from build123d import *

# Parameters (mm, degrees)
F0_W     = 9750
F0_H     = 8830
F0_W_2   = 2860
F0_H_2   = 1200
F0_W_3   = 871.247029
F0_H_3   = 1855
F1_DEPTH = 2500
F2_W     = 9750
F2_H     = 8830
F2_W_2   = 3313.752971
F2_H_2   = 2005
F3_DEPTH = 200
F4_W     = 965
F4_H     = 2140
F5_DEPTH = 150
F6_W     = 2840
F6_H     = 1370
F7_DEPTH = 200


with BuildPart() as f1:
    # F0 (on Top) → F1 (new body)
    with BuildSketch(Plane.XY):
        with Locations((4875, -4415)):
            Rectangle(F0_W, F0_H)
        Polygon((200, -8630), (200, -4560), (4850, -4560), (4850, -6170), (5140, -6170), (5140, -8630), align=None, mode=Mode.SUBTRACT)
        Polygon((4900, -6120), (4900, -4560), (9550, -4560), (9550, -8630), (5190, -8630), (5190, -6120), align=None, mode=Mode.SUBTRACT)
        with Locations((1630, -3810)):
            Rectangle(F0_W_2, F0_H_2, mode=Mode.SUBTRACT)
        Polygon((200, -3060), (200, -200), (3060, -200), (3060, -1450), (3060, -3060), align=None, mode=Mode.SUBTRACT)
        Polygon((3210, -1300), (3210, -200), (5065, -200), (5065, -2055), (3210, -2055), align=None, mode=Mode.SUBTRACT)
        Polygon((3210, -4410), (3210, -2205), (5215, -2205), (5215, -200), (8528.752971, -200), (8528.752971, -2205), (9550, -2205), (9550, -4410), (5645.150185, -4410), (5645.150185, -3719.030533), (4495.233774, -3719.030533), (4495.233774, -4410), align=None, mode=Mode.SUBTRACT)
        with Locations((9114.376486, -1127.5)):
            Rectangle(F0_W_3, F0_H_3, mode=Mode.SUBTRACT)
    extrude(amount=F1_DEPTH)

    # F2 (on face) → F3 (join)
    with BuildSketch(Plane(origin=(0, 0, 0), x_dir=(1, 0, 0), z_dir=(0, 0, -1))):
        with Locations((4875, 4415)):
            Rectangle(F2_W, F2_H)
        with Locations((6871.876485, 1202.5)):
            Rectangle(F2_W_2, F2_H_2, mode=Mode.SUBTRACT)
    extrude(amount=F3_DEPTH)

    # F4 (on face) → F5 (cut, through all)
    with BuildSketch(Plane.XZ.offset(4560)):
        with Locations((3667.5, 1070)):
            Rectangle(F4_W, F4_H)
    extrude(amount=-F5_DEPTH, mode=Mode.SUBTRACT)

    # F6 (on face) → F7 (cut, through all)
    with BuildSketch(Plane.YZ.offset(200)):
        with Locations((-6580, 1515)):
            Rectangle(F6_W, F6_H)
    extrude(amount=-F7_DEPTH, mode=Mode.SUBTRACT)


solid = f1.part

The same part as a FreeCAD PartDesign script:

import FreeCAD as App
import Part
import Sketcher
from FreeCAD import Vector
Q = App.Units.Quantity

doc = App.newDocument("Part")
body = doc.addObject("PartDesign::Body", "Body")

# Sketch on XY plane
sketch1 = body.newObject("Sketcher::SketchObject", "Sketch")
sketch1.AttachmentSupport = (doc.getObject("XY_Plane"), [""])
sketch1.MapMode = "FlatFace"
sketch1.addGeometry([
    Part.LineSegment(Vector(0, 0, 0), Vector(0, -8830, 0)),  # 0
    Part.LineSegment(Vector(0, -8830, 0), Vector(9750, -8830, 0)),  # 1
    Part.LineSegment(Vector(9750, -8830, 0), Vector(9750, 0, 0)),  # 2
    Part.LineSegment(Vector(9750, 0, 0), Vector(0, 0, 0)),  # 3
    Part.LineSegment(Vector(5140, -8630, 0), Vector(200, -8630, 0)),  # 4
    Part.LineSegment(Vector(200, -8630, 0), Vector(200, -4560, 0)),  # 5
    Part.LineSegment(Vector(200, -4560, 0), Vector(4850, -4560, 0)),  # 6
    Part.LineSegment(Vector(4850, -4560, 0), Vector(4850, -6170, 0)),  # 7
    Part.LineSegment(Vector(4850, -6170, 0), Vector(5140, -6170, 0)),  # 8
    Part.LineSegment(Vector(5140, -6170, 0), Vector(5140, -8630, 0)),  # 9
    Part.LineSegment(Vector(5190, -6120, 0), Vector(4900, -6120, 0)),  # 10
    Part.LineSegment(Vector(4900, -6120, 0), Vector(4900, -4560, 0)),  # 11
    Part.LineSegment(Vector(4900, -4560, 0), Vector(9550, -4560, 0)),  # 12
    Part.LineSegment(Vector(9550, -4560, 0), Vector(9550, -8630, 0)),  # 13
    Part.LineSegment(Vector(9550, -8630, 0), Vector(5190, -8630, 0)),  # 14
    Part.LineSegment(Vector(5190, -8630, 0), Vector(5190, -6120, 0)),  # 15
    Part.LineSegment(Vector(3060, -4410, 0), Vector(200, -4410, 0)),  # 16
    Part.LineSegment(Vector(200, -4410, 0), Vector(200, -3210, 0)),  # 17
    Part.LineSegment(Vector(200, -3210, 0), Vector(3060, -3210, 0)),  # 18
    Part.LineSegment(Vector(3060, -3210, 0), Vector(3060, -4410, 0)),  # 19
    Part.LineSegment(Vector(3060, -3060, 0), Vector(200, -3060, 0)),  # 20
    Part.LineSegment(Vector(200, -3060, 0), Vector(200, -200, 0)),  # 21
    Part.LineSegment(Vector(200, -200, 0), Vector(3060, -200, 0)),  # 22
    Part.LineSegment(Vector(3060, -200, 0), Vector(3060, -3060, 0)),  # 23
    Part.LineSegment(Vector(3210, -2055, 0), Vector(3210, -200, 0)),  # 24
    Part.LineSegment(Vector(3210, -200, 0), Vector(5065, -200, 0)),  # 25
    Part.LineSegment(Vector(5065, -200, 0), Vector(5065, -2055, 0)),  # 26
    Part.LineSegment(Vector(5065, -2055, 0), Vector(3210, -2055, 0)),  # 27
    Part.LineSegment(Vector(4495.233774, -4410, 0), Vector(3210, -4410, 0)),  # 28
    Part.LineSegment(Vector(3210, -4410, 0), Vector(3210, -2205, 0)),  # 29
    Part.LineSegment(Vector(3210, -2205, 0), Vector(5215, -2205, 0)),  # 30
    Part.LineSegment(Vector(5215, -2205, 0), Vector(5215, -200, 0)),  # 31
    Part.LineSegment(Vector(5215, -200, 0), Vector(8528.752971, -200, 0)),  # 32
    Part.LineSegment(Vector(8528.752971, -200, 0), Vector(8528.752971, -2205, 0)),  # 33
    Part.LineSegment(Vector(8528.752971, -2205, 0), Vector(9550, -2205, 0)),  # 34
    Part.LineSegment(Vector(9550, -2205, 0), Vector(9550, -4410, 0)),  # 35
    Part.LineSegment(Vector(9550, -4410, 0), Vector(5645.150185, -4410, 0)),  # 36
    Part.LineSegment(Vector(5645.150185, -4410, 0), Vector(5645.150185, -3719.030533, 0)),  # 37
    Part.LineSegment(Vector(5645.150185, -3719.030533, 0), Vector(4495.233774, -3719.030533, 0)),  # 38
    Part.LineSegment(Vector(4495.233774, -3719.030533, 0), Vector(4495.233774, -4410, 0)),  # 39
    Part.LineSegment(Vector(9550.000001, -2055, 0), Vector(8678.752972, -2055, 0)),  # 40
    Part.LineSegment(Vector(8678.752972, -2055, 0), Vector(8678.752972, -200, 0)),  # 41
    Part.LineSegment(Vector(8678.752972, -200, 0), Vector(9550.000001, -200, 0)),  # 42
    Part.LineSegment(Vector(9550.000001, -200, 0), Vector(9550.000001, -2055, 0)),  # 43
], False)
sketch1.addConstraint([
    Sketcher.Constraint("Coincident", 0, 2, 1, 1),
    Sketcher.Constraint("Coincident", 1, 2, 2, 1),
    Sketcher.Constraint("Coincident", 2, 2, 3, 1),
    Sketcher.Constraint("Coincident", 3, 2, 0, 1),
    Sketcher.Constraint("Coincident", 4, 2, 5, 1),
    Sketcher.Constraint("Coincident", 5, 2, 6, 1),
    Sketcher.Constraint("Coincident", 6, 2, 7, 1),
    Sketcher.Constraint("Coincident", 7, 2, 8, 1),
    Sketcher.Constraint("Coincident", 8, 2, 9, 1),
    Sketcher.Constraint("Coincident", 9, 2, 4, 1),
    Sketcher.Constraint("Coincident", 10, 2, 11, 1),
    Sketcher.Constraint("Coincident", 11, 2, 12, 1),
    Sketcher.Constraint("Coincident", 12, 2, 13, 1),
    Sketcher.Constraint("Coincident", 13, 2, 14, 1),
    Sketcher.Constraint("Coincident", 14, 2, 15, 1),
    Sketcher.Constraint("Coincident", 15, 2, 10, 1),
    Sketcher.Constraint("Coincident", 16, 2, 17, 1),
    Sketcher.Constraint("Coincident", 17, 2, 18, 1),
    Sketcher.Constraint("Coincident", 18, 2, 19, 1),
    Sketcher.Constraint("Coincident", 19, 2, 16, 1),
    Sketcher.Constraint("Coincident", 20, 2, 21, 1),
    Sketcher.Constraint("Coincident", 21, 2, 22, 1),
    Sketcher.Constraint("Coincident", 22, 2, 23, 1),
    Sketcher.Constraint("Coincident", 23, 2, 20, 1),
    Sketcher.Constraint("Coincident", 24, 2, 25, 1),
    Sketcher.Constraint("Coincident", 25, 2, 26, 1),
    Sketcher.Constraint("Coincident", 26, 2, 27, 1),
    Sketcher.Constraint("Coincident", 27, 2, 24, 1),
    Sketcher.Constraint("Coincident", 28, 2, 29, 1),
    Sketcher.Constraint("Coincident", 29, 2, 30, 1),
    Sketcher.Constraint("Coincident", 30, 2, 31, 1),
    Sketcher.Constraint("Coincident", 31, 2, 32, 1),
    Sketcher.Constraint("Coincident", 32, 2, 33, 1),
    Sketcher.Constraint("Coincident", 33, 2, 34, 1),
    Sketcher.Constraint("Coincident", 34, 2, 35, 1),
    Sketcher.Constraint("Coincident", 35, 2, 36, 1),
    Sketcher.Constraint("Coincident", 36, 2, 37, 1),
    Sketcher.Constraint("Coincident", 37, 2, 38, 1),
    Sketcher.Constraint("Coincident", 38, 2, 39, 1),
    Sketcher.Constraint("Coincident", 39, 2, 28, 1),
    Sketcher.Constraint("Coincident", 40, 2, 41, 1),
    Sketcher.Constraint("Coincident", 41, 2, 42, 1),
    Sketcher.Constraint("Coincident", 42, 2, 43, 1),
    Sketcher.Constraint("Coincident", 43, 2, 40, 1),
    Sketcher.Constraint("Vertical", 0),
    Sketcher.Constraint("Horizontal", 1),
    Sketcher.Constraint("Vertical", 2),
    Sketcher.Constraint("Horizontal", 3),
    Sketcher.Constraint("Horizontal", 4),
    Sketcher.Constraint("Vertical", 5),
    Sketcher.Constraint("Horizontal", 6),
    Sketcher.Constraint("Vertical", 7),
    Sketcher.Constraint("Horizontal", 8),
    Sketcher.Constraint("Vertical", 9),
    Sketcher.Constraint("Horizontal", 10),
    Sketcher.Constraint("Vertical", 11),
    Sketcher.Constraint("Horizontal", 12),
    Sketcher.Constraint("Vertical", 13),
    Sketcher.Constraint("Horizontal", 14),
    Sketcher.Constraint("Vertical", 15),
    Sketcher.Constraint("Horizontal", 16),
    Sketcher.Constraint("Vertical", 17),
    Sketcher.Constraint("Horizontal", 18),
    Sketcher.Constraint("Vertical", 19),
    Sketcher.Constraint("Horizontal", 20),
    Sketcher.Constraint("Vertical", 21),
    Sketcher.Constraint("Horizontal", 22),
    Sketcher.Constraint("Vertical", 23),
    Sketcher.Constraint("Vertical", 24),
    Sketcher.Constraint("Horizontal", 25),
    Sketcher.Constraint("Vertical", 26),
    Sketcher.Constraint("Horizontal", 27),
    Sketcher.Constraint("Horizontal", 28),
    Sketcher.Constraint("Vertical", 29),
    Sketcher.Constraint("Horizontal", 30),
    Sketcher.Constraint("Vertical", 31),
    Sketcher.Constraint("Horizontal", 32),
    Sketcher.Constraint("Vertical", 33),
    Sketcher.Constraint("Horizontal", 34),
    Sketcher.Constraint("Vertical", 35),
    Sketcher.Constraint("Horizontal", 36),
    Sketcher.Constraint("Vertical", 37),
    Sketcher.Constraint("Horizontal", 38),
    Sketcher.Constraint("Vertical", 39),
    Sketcher.Constraint("Horizontal", 40),
    Sketcher.Constraint("Vertical", 41),
    Sketcher.Constraint("Horizontal", 42),
    Sketcher.Constraint("Vertical", 43),
    Sketcher.Constraint("Coincident", 3, 2, -1, 1),
    Sketcher.Constraint("Horizontal", 6, 2, 11, 2),
    Sketcher.Constraint("Horizontal", 9, 2, 13, 2),
    Sketcher.Constraint("Horizontal", 22, 2, 24, 2),
    Sketcher.Constraint("Horizontal", 19, 2, 28, 2),
    Sketcher.Constraint("Horizontal", 25, 2, 31, 2),
    Sketcher.Constraint("Horizontal", 30, 2, 33, 2),
    Sketcher.Constraint("Horizontal", 28, 2, 35, 2),
    Sketcher.Constraint("Horizontal", 27, 2, 40, 2),
    Sketcher.Constraint("Horizontal", 32, 2, 41, 2),
    Sketcher.Constraint("Vertical", 5, 2, 16, 2),
    Sketcher.Constraint("Vertical", 17, 2, 20, 2),
    Sketcher.Constraint("Vertical", 19, 2, 22, 2),
    Sketcher.Constraint("Vertical", 27, 2, 28, 2),
    Sketcher.Constraint("Vertical", 13, 2, 34, 2),
    Sketcher.Constraint("Vertical", 35, 2, 42, 2),
    Sketcher.Constraint("Equal", 8, 10),
    Sketcher.Constraint("Equal", 6, 12),
    Sketcher.Constraint("Equal", 22, 21),
    Sketcher.Constraint("Equal", 27, 24),
    Sketcher.Constraint("Equal", 30, 31),
    Sketcher.Constraint("DistanceX", 1, 1, 1, 2, Q("9750 mm")),
    Sketcher.Constraint("DistanceX", 4, 2, 4, 1, Q("4940 mm")),
    Sketcher.Constraint("DistanceX", 6, 1, 6, 2, Q("4650 mm")),
    Sketcher.Constraint("DistanceX", 16, 2, 16, 1, Q("2860 mm")),
    Sketcher.Constraint("DistanceX", 25, 1, 25, 2, Q("1855 mm")),
    Sketcher.Constraint("DistanceX", 30, 1, 30, 2, Q("2005 mm")),
    Sketcher.Constraint("DistanceY", 0, 2, 0, 1, Q("8830 mm")),
    Sketcher.Constraint("DistanceY", 5, 1, 5, 2, Q("4070 mm")),
    Sketcher.Constraint("DistanceY", 7, 2, 7, 1, Q("1610 mm")),
    Sketcher.Constraint("DistanceY", 11, 1, 11, 2, Q("1560 mm")),
    Sketcher.Constraint("DistanceY", 17, 1, 17, 2, Q("1200 mm")),
    Sketcher.Constraint("DistanceY", 29, 1, 29, 2, Q("2205 mm")),
    Sketcher.Constraint("DistanceX", -1, 1, 4, 2, Q("200 mm")),
    Sketcher.Constraint("DistanceY", 4, 2, -1, 1, Q("8630 mm")),
    Sketcher.Constraint("DistanceX", -1, 1, 10, 2, Q("4900 mm")),
    Sketcher.Constraint("DistanceY", 16, 2, -1, 1, Q("4410 mm")),
    Sketcher.Constraint("DistanceX", -1, 1, 24, 2, Q("3210 mm")),
    Sketcher.Constraint("DistanceX", 33, 2, 40, 2, Q("150.000001 mm")),
    Sketcher.Constraint("DistanceX", 32, 1, 32, 2, Q("3313.752971 mm")),
    Sketcher.Constraint("DistanceX", 38, 2, 38, 1, Q("1149.916411 mm")),
    Sketcher.Constraint("DistanceX", 28, 2, 28, 1, Q("1285.233774 mm")),
    Sketcher.Constraint("DistanceY", 37, 1, 37, 2, Q("690.969467 mm")),
])
pad1 = body.newObject("PartDesign::Pad", "Pad")
pad1.Profile = sketch1
pad1.Length = 2500

# Sketch on XY plane
sketch2 = body.newObject("Sketcher::SketchObject", "Sketch001")
sketch2.AttachmentSupport = (doc.getObject("XY_Plane"), [""])
sketch2.MapMode = "FlatFace"
sketch2.addGeometry([
    Part.LineSegment(Vector(0, -8830, 0), Vector(0, 0, 0)),  # 0
    Part.LineSegment(Vector(0, 0, 0), Vector(9750, 0, 0)),  # 1
    Part.LineSegment(Vector(9750, 0, 0), Vector(9750, -8830, 0)),  # 2
    Part.LineSegment(Vector(9750, -8830, 0), Vector(0, -8830, 0)),  # 3
    Part.LineSegment(Vector(8528.75297, -200, 0), Vector(5214.999999, -200, 0)),  # 4
    Part.LineSegment(Vector(5214.999999, -200, 0), Vector(5214.999999, -2205, 0)),  # 5
    Part.LineSegment(Vector(5214.999999, -2205, 0), Vector(8528.75297, -2205, 0)),  # 6
    Part.LineSegment(Vector(8528.75297, -2205, 0), Vector(8528.75297, -200, 0)),  # 7
], False)
sketch2.addConstraint([
    Sketcher.Constraint("Coincident", 0, 2, 1, 1),
    Sketcher.Constraint("Coincident", 1, 2, 2, 1),
    Sketcher.Constraint("Coincident", 2, 2, 3, 1),
    Sketcher.Constraint("Coincident", 3, 2, 0, 1),
    Sketcher.Constraint("Coincident", 4, 2, 5, 1),
    Sketcher.Constraint("Coincident", 5, 2, 6, 1),
    Sketcher.Constraint("Coincident", 6, 2, 7, 1),
    Sketcher.Constraint("Coincident", 7, 2, 4, 1),
    Sketcher.Constraint("Vertical", 0),
    Sketcher.Constraint("Horizontal", 1),
    Sketcher.Constraint("Vertical", 2),
    Sketcher.Constraint("Horizontal", 3),
    Sketcher.Constraint("Horizontal", 4),
    Sketcher.Constraint("Vertical", 5),
    Sketcher.Constraint("Horizontal", 6),
    Sketcher.Constraint("Vertical", 7),
    Sketcher.Constraint("Coincident", 0, 2, -1, 1),
    Sketcher.Constraint("DistanceX", 1, 1, 1, 2, Q("9750 mm")),
    Sketcher.Constraint("DistanceY", 0, 1, 0, 2, Q("8830 mm")),
    Sketcher.Constraint("DistanceY", 5, 2, 5, 1, Q("2005 mm")),
    Sketcher.Constraint("DistanceX", -1, 1, 4, 2, Q("5214.999999 mm")),
    Sketcher.Constraint("DistanceY", 4, 2, -1, 1, Q("200 mm")),
    Sketcher.Constraint("DistanceX", 4, 2, 4, 1, Q("3313.752971 mm")),
])
pad2 = body.newObject("PartDesign::Pad", "Pad001")
pad2.Profile = sketch2
pad2.Length = 200
pad2.Reversed = True

# Sketch on XZ plane
sketch3 = body.newObject("Sketcher::SketchObject", "Sketch002")
sketch3.AttachmentSupport = (doc.getObject("XZ_Plane"), [""])
sketch3.MapMode = "FlatFace"
sketch3.AttachmentOffset = App.Placement(Vector(0, 0, 4560), App.Rotation())
sketch3.addGeometry([
    Part.LineSegment(Vector(3185, 2140, 0), Vector(3185, 0, 0)),
    Part.LineSegment(Vector(3185, 0, 0), Vector(4150, 0, 0)),
    Part.LineSegment(Vector(4150, 0, 0), Vector(4150, 2140, 0)),
    Part.LineSegment(Vector(4150, 2140, 0), Vector(3185, 2140, 0)),
], False)
sketch3.addConstraint([
    Sketcher.Constraint("Coincident", 0, 2, 1, 1),
    Sketcher.Constraint("Coincident", 1, 2, 2, 1),
    Sketcher.Constraint("Coincident", 2, 2, 3, 1),
    Sketcher.Constraint("Coincident", 3, 2, 0, 1),
    Sketcher.Constraint("Vertical", 0),
    Sketcher.Constraint("Horizontal", 1),
    Sketcher.Constraint("Vertical", 2),
    Sketcher.Constraint("Horizontal", 3),
    Sketcher.Constraint("PointOnObject", 0, 2, -1),
    Sketcher.Constraint("DistanceX", 1, 1, 1, 2, Q("965 mm")),
    Sketcher.Constraint("DistanceY", 0, 2, 0, 1, Q("2140 mm")),
    Sketcher.Constraint("DistanceX", -1, 1, 0, 2, Q("3185 mm")),
])
pocket1 = body.newObject("PartDesign::Pocket", "Pocket")
pocket1.Profile = sketch3
pocket1.Length = 150

# Sketch on YZ plane
sketch4 = body.newObject("Sketcher::SketchObject", "Sketch003")
sketch4.AttachmentSupport = (doc.getObject("YZ_Plane"), [""])
sketch4.MapMode = "FlatFace"
sketch4.AttachmentOffset = App.Placement(Vector(0, 0, 200), App.Rotation())
sketch4.addGeometry([
    Part.LineSegment(Vector(-8000, 2200, 0), Vector(-8000, 830, 0)),
    Part.LineSegment(Vector(-8000, 830, 0), Vector(-5160, 830, 0)),
    Part.LineSegment(Vector(-5160, 830, 0), Vector(-5160, 2200, 0)),
    Part.LineSegment(Vector(-5160, 2200, 0), Vector(-8000, 2200, 0)),
], False)
sketch4.addConstraint([
    Sketcher.Constraint("Coincident", 0, 2, 1, 1),
    Sketcher.Constraint("Coincident", 1, 2, 2, 1),
    Sketcher.Constraint("Coincident", 2, 2, 3, 1),
    Sketcher.Constraint("Coincident", 3, 2, 0, 1),
    Sketcher.Constraint("Vertical", 0),
    Sketcher.Constraint("Horizontal", 1),
    Sketcher.Constraint("Vertical", 2),
    Sketcher.Constraint("Horizontal", 3),
    Sketcher.Constraint("DistanceX", 1, 1, 1, 2, Q("2840 mm")),
    Sketcher.Constraint("DistanceY", 0, 2, 0, 1, Q("1370 mm")),
    Sketcher.Constraint("DistanceX", 0, 2, -1, 1, Q("8000 mm")),
    Sketcher.Constraint("DistanceY", -1, 1, 0, 2, Q("830 mm")),
])
pocket2 = body.newObject("PartDesign::Pocket", "Pocket001")
pocket2.Profile = sketch4
pocket2.Type = "ThroughAll"

doc.recompute()
